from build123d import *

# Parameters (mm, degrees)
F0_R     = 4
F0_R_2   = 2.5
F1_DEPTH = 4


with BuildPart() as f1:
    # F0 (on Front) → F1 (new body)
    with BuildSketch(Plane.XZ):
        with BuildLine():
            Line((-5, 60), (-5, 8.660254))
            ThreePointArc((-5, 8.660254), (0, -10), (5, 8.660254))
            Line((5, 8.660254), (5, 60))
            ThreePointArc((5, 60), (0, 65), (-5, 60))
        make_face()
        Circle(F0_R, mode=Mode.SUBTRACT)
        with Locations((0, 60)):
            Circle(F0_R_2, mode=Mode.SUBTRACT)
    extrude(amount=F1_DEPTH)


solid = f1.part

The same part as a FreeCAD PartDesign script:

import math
import FreeCAD as App
import Part
import Sketcher

V = App.Vector

doc = App.newDocument("Part")
body = doc.addObject("PartDesign::Body", "Body")

sketch1 = body.newObject("Sketcher::SketchObject", "Sketch")
sketch1.AttachmentSupport = (doc.getObject("XZ_Plane"), [""])
sketch1.MapMode = "FlatFace"
sketch1.addGeometry([
    Part.LineSegment(V(-5, 60, 0), V(-5, 8.7, 0)),
    Part.ArcOfCircle(Part.Circle(V(0, 0, 0), V(0, 0, 1), 10), math.radians(120), math.radians(420)),
    Part.LineSegment(V(5, 8.7, 0), V(5, 60, 0)),
    Part.ArcOfCircle(Part.Circle(V(0, 60, 0), V(0, 0, 1), 5), math.radians(0), math.radians(180)),
    Part.Circle(V(0, 0, 0), V(0, 0, 1), 4),
    Part.Circle(V(0, 60, 0), V(0, 0, 1), 2.5),
], False)
sketch1.addConstraint([
    Sketcher.Constraint("Coincident", 0, 2, 1, 1),
    Sketcher.Constraint("Coincident", 1, 2, 2, 1),
    Sketcher.Constraint("Tangent", 2, 2, 3, 1),
    Sketcher.Constraint("Tangent", 3, 2, 0, 1),
    Sketcher.Constraint("Vertical", 0),
    Sketcher.Constraint("Vertical", 2),
    Sketcher.Constraint("Coincident", 1, 3, -1, 1),
    Sketcher.Constraint("Coincident", 4, 3, -1, 1),
    Sketcher.Constraint("Coincident", 5, 3, 3, 3),
    Sketcher.Constraint("PointOnObject", 3, 3, -2),
    Sketcher.Constraint("Diameter", 4, 8.0),
    Sketcher.Constraint("Diameter", 5, 5.0),
    Sketcher.Constraint("Radius", 1, 10.0),
    Sketcher.Constraint("Radius", 3, 5.0),
    Sketcher.Constraint("DistanceY", -1, 1, 3, 3, 60.0),
])
pad1 = body.newObject("PartDesign::Pad", "Pad")
pad1.Profile = sketch1
pad1.Length = 4

doc.recompute()
